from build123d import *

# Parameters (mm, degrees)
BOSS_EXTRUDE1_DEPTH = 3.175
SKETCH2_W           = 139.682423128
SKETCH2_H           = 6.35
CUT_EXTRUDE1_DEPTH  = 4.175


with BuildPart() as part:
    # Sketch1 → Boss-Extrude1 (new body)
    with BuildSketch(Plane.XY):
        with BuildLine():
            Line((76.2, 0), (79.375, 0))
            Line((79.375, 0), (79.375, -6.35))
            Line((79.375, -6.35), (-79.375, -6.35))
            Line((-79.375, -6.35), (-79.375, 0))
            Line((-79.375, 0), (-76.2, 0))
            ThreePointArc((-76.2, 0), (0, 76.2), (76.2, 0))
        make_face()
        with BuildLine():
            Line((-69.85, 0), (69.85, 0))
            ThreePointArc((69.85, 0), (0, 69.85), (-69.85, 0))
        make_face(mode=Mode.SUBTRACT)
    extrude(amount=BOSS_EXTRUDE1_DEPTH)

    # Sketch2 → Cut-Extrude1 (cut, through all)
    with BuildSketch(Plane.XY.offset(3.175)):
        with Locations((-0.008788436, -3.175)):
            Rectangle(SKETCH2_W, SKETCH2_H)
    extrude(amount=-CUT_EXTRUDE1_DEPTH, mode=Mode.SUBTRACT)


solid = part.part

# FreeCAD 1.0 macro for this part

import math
import FreeCAD as App
import Part
import Sketcher
Q = App.Units.Quantity


def add_polygon(sketch, points):
    """Adds a closed chain of lines whose ends are joined by coincident constraints."""
    first, n = sketch.GeometryCount, len(points)
    for a, b in zip(points, points[1:] + points[:1]):
        sketch.addGeometry(Part.LineSegment(App.Vector(*a, 0), App.Vector(*b, 0)), False)
    for i in range(n):
        sketch.addConstraint(Sketcher.Constraint("Coincident", first + i, 2, first + (i + 1) % n, 1))

doc = App.newDocument("Part")
body = doc.addObject("PartDesign::Body", "Body")

sketch1 = doc.addObject("Sketcher::SketchObject", "Sketch")
body.addObject(sketch1)
sketch1.AttachmentSupport = (doc.XY_Plane, [""])
sketch1.MapMode = "FlatFace"
sketch1.addGeometry([
    Part.LineSegment(App.Vector(79.4, 0, 0), App.Vector(76.2, 0, 0)),
    Part.ArcOfCircle(Part.Circle(App.Vector(0, 0, 0), App.Vector(0, 0, 1), 76.2), math.radians(0), math.radians(180)),
    Part.LineSegment(App.Vector(-76.2, 0, 0), App.Vector(-79.4, 0, 0)),
    Part.LineSegment(App.Vector(-79.4, 0, 0), App.Vector(-79.4, -6.3, 0)),
    Part.LineSegment(App.Vector(-79.4, -6.3, 0), App.Vector(79.4, -6.3, 0)),
    Part.LineSegment(App.Vector(79.4, -6.3, 0), App.Vector(79.4, 0, 0)),
    Part.ArcOfCircle(Part.Circle(App.Vector(0, 0, 0), App.Vector(0, 0, 1), 69.8), math.radians(0), math.radians(180)),
    Part.LineSegment(App.Vector(69.8, 0, 0), App.Vector(-69.8, 0, 0)),
], False)
sketch1.addConstraint([
    Sketcher.Constraint("Coincident", 0, 2, 1, 1),
    Sketcher.Constraint("Coincident", 1, 2, 2, 1),
    Sketcher.Constraint("Coincident", 2, 2, 3, 1),
    Sketcher.Constraint("Coincident", 3, 2, 4, 1),
    Sketcher.Constraint("Coincident", 4, 2, 5, 1),
    Sketcher.Constraint("Coincident", 5, 2, 0, 1),
    Sketcher.Constraint("Coincident", 6, 1, 7, 1),
    Sketcher.Constraint("Coincident", 7, 2, 6, 2),
    Sketcher.Constraint("Horizontal", 0),
    Sketcher.Constraint("Horizontal", 2),
    Sketcher.Constraint("Vertical", 3),
    Sketcher.Constraint("Horizontal", 4),
    Sketcher.Constraint("Vertical", 5),
    Sketcher.Constraint("Horizontal", 7),
    Sketcher.Constraint("Coincident", 1, 3, -1, 1),
    Sketcher.Constraint("Coincident", 6, 3, -1, 1),
    Sketcher.Constraint("Symmetric", 2, 2, 5, 2, -1, 1),
    Sketcher.Constraint("PointOnObject", 0, 2, -1),
    Sketcher.Constraint("PointOnObject", 6, 1, -1),
    Sketcher.Constraint("Radius", 1, Q("3 in")),
    Sketcher.Constraint("Radius", 6, Q("2.75 in")),
    Sketcher.Constraint("DistanceX", 4, 1, 4, 2, Q("6.25 in")),
    Sketcher.Constraint("DistanceY", 3, 2, 3, 1, Q("0.25 in")),
])
pad1 = doc.addObject("PartDesign::Pad", "Pad")
body.addObject(pad1)
pad1.Profile = sketch1
pad1.Length = Q("0.125 in")

sketch2 = doc.addObject("Sketcher::SketchObject", "Sketch001")
body.addObject(sketch2)
sketch2.AttachmentSupport = (doc.XY_Plane, [""])
sketch2.MapMode = "FlatFace"
sketch2.AttachmentOffset = App.Placement(App.Vector(0, 0, 0.125 * 25.4), App.Rotation())
add_polygon(sketch2, [(-70, 0), (-70, -6), (70, -6), (70, 0)])
sketch2.addConstraint([
    Sketcher.Constraint("Vertical", 0),
    Sketcher.Constraint("Horizontal", 1),
    Sketcher.Constraint("Vertical", 2),
    Sketcher.Constraint("Horizontal", 3),
    Sketcher.Constraint("PointOnObject", 2, 2, -1),
    Sketcher.Constraint("DistanceY", 0, 2, 0, 1, Q("0.25 in")),
    Sketcher.Constraint("DistanceX", 0, 2, -1, 1, Q("2.75 in")),
    Sketcher.Constraint("DistanceX", 1, 1, 1, 2, 139.682423),
])
pocket1 = doc.addObject("PartDesign::Pocket", "Pocket")
body.addObject(pocket1)
pocket1.Profile = sketch2
pocket1.Type = "ThroughAll"

doc.recompute()
